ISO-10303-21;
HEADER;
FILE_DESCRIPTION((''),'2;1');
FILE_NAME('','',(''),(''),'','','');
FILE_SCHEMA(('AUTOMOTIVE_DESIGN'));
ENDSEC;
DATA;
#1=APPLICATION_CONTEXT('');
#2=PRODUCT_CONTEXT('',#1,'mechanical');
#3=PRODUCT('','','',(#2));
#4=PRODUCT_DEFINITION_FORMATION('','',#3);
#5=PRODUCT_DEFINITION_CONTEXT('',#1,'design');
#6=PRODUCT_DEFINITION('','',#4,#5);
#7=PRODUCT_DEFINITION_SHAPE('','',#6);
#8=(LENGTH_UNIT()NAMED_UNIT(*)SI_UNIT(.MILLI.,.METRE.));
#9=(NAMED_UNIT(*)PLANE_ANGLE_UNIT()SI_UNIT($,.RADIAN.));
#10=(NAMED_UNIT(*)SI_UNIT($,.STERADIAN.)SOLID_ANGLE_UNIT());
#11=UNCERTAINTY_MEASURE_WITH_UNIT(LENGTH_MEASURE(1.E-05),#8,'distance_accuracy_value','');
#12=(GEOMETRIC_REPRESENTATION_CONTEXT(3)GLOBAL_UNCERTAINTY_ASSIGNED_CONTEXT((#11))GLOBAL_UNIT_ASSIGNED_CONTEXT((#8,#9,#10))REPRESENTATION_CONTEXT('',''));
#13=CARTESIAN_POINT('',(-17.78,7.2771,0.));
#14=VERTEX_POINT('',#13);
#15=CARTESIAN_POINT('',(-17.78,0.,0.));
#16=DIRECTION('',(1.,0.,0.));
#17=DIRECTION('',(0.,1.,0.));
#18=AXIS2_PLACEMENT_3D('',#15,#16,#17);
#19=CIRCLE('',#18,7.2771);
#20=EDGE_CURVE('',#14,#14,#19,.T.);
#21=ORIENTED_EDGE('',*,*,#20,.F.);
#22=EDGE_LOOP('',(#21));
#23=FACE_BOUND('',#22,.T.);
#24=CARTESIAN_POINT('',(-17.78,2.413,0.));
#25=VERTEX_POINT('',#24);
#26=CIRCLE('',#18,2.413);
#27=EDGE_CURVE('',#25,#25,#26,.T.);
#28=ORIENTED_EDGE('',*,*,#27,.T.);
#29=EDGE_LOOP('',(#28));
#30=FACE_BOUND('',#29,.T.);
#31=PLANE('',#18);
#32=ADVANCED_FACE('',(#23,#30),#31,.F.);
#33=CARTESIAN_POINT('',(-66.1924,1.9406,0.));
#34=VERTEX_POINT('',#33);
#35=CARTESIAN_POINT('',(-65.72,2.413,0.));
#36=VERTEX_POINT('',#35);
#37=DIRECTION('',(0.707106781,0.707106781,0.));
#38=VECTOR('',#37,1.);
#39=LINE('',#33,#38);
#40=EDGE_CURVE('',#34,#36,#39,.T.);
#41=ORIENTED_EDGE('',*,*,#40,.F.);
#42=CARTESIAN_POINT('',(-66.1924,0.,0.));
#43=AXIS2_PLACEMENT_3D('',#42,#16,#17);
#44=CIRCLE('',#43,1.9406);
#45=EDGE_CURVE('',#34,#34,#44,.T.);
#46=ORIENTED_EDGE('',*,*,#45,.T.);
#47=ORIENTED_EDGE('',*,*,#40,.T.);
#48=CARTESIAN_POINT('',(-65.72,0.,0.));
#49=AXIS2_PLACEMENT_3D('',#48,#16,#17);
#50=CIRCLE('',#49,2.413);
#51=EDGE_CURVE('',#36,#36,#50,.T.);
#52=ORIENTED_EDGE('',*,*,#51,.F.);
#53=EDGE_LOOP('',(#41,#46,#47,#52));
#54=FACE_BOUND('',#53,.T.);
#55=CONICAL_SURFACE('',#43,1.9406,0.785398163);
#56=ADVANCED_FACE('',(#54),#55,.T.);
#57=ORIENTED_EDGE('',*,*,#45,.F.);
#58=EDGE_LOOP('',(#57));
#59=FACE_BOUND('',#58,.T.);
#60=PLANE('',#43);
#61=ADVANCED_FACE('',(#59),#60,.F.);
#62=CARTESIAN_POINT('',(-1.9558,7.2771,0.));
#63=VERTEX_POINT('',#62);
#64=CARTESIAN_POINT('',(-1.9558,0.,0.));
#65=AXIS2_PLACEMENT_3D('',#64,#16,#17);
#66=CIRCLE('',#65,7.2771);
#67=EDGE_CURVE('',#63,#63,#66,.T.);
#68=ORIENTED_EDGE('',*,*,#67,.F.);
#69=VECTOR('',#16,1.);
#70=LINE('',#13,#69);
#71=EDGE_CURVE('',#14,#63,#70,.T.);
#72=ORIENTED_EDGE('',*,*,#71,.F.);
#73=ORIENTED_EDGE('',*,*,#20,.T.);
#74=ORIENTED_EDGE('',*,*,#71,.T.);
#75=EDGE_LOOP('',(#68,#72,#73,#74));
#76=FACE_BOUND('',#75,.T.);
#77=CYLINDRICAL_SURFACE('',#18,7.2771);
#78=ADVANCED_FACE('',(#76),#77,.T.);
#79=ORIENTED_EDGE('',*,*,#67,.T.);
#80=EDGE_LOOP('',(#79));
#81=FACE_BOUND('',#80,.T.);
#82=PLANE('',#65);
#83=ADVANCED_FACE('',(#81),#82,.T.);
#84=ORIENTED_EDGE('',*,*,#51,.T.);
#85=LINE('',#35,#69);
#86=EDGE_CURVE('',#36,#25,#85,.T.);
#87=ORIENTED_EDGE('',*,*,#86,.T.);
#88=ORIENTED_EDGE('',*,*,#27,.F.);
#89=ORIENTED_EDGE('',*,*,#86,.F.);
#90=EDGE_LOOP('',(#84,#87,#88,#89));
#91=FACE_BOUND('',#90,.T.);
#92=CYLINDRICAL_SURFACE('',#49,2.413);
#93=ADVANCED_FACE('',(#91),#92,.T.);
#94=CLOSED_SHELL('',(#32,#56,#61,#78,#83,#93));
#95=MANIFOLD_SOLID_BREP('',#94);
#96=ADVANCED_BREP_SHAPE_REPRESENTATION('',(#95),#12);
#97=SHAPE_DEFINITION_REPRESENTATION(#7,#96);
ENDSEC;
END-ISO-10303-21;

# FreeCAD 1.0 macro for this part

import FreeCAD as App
import Part
import Sketcher

V = App.Vector
Q = App.Units.Quantity

doc = App.newDocument("Part")
body = doc.addObject("PartDesign::Body", "Body")

# Sketch on XY plane
sketch1 = body.newObject("Sketcher::SketchObject", "Sketch")
sketch1.AttachmentSupport = (doc.getObject("XY_Plane"), [""])
sketch1.MapMode = "FlatFace"
sketch1.addGeometry(Part.LineSegment(V(-66.1924, 0, 0), V(-9.525, 0, 0)), False)
sketch1.addGeometry(Part.LineSegment(V(-9.525, 0, 0), V(-9.525, 2.413, 0)), False)
sketch1.addGeometry(Part.LineSegment(V(-9.525, 2.413, 0), V(-65.72, 2.413, 0)), False)
sketch1.addGeometry(Part.LineSegment(V(-65.72, 2.413, 0), V(-66.1924, 1.9406, 0)), False)
sketch1.addGeometry(Part.LineSegment(V(-66.1924, 1.9406, 0), V(-66.1924, 0, 0)), False)
sketch1.addConstraint(Sketcher.Constraint("Coincident", 0, 2, 1, 1))
sketch1.addConstraint(Sketcher.Constraint("Coincident", 1, 2, 2, 1))
sketch1.addConstraint(Sketcher.Constraint("Coincident", 2, 2, 3, 1))
sketch1.addConstraint(Sketcher.Constraint("Coincident", 3, 2, 4, 1))
sketch1.addConstraint(Sketcher.Constraint("Coincident", 4, 2, 0, 1))
sketch1.addConstraint(Sketcher.Constraint("Horizontal", 0))
sketch1.addConstraint(Sketcher.Constraint("Vertical", 1))
sketch1.addConstraint(Sketcher.Constraint("Horizontal", 2))
sketch1.addConstraint(Sketcher.Constraint("Vertical", 4))
sketch1.addConstraint(Sketcher.Constraint("PointOnObject", 0, 2, -1))
sketch1.addConstraint(Sketcher.Constraint("Angle", 3, Q("-135 deg")))
sketch1.addConstraint(Sketcher.Constraint("DistanceX", 0, 1, 0, 2, Q("2.231 in")))
sketch1.addConstraint(Sketcher.Constraint("DistanceY", 1, 1, 1, 2, Q("0.095 in")))
sketch1.addConstraint(Sketcher.Constraint("DistanceX", 2, 2, 2, 1, Q("2.2124 in")))
sketch1.addConstraint(Sketcher.Constraint("DistanceX", 0, 2, -1, 1, Q("0.375 in")))
revolution = body.newObject("PartDesign::Revolution", "Revolution")
revolution.Profile = sketch1
revolution.ReferenceAxis = (sketch1, ["H_Axis"])
revolution.Angle = 360

# Sketch on XY plane
sketch2 = body.newObject("Sketcher::SketchObject", "Sketch001")
sketch2.AttachmentSupport = (doc.getObject("XY_Plane"), [""])
sketch2.MapMode = "FlatFace"
sketch2.addGeometry(Part.LineSegment(V(-17.78, 0, 0), V(-1.9558, 0, 0)), False)
sketch2.addGeometry(Part.LineSegment(V(-1.9558, 0, 0), V(-1.9558, 7.2771, 0)), False)
sketch2.addGeometry(Part.LineSegment(V(-1.9558, 7.2771, 0), V(-17.78, 7.2771, 0)), False)
sketch2.addGeometry(Part.LineSegment(V(-17.78, 7.2771, 0), V(-17.78, 0, 0)), False)
sketch2.addConstraint(Sketcher.Constraint("Coincident", 0, 2, 1, 1))
sketch2.addConstraint(Sketcher.Constraint("Coincident", 1, 2, 2, 1))
sketch2.addConstraint(Sketcher.Constraint("Coincident", 2, 2, 3, 1))
sketch2.addConstraint(Sketcher.Constraint("Coincident", 3, 2, 0, 1))
sketch2.addConstraint(Sketcher.Constraint("Horizontal", 0))
sketch2.addConstraint(Sketcher.Constraint("Vertical", 1))
sketch2.addConstraint(Sketcher.Constraint("Horizontal", 2))
sketch2.addConstraint(Sketcher.Constraint("Vertical", 3))
sketch2.addConstraint(Sketcher.Constraint("PointOnObject", 0, 2, -1))
sketch2.addConstraint(Sketcher.Constraint("DistanceX", 2, 2, -1, 1, Q("0.7 in")))
sketch2.addConstraint(Sketcher.Constraint("DistanceX", 0, 1, 0, 2, Q("0.623 in")))
sketch2.addConstraint(Sketcher.Constraint("DistanceY", 1, 1, 1, 2, Q("0.2865 in")))
revolution2 = body.newObject("PartDesign::Revolution", "Revolution001")
revolution2.Profile = sketch2
revolution2.ReferenceAxis = (sketch2, ["H_Axis"])
revolution2.Angle = 360

doc.recompute()
